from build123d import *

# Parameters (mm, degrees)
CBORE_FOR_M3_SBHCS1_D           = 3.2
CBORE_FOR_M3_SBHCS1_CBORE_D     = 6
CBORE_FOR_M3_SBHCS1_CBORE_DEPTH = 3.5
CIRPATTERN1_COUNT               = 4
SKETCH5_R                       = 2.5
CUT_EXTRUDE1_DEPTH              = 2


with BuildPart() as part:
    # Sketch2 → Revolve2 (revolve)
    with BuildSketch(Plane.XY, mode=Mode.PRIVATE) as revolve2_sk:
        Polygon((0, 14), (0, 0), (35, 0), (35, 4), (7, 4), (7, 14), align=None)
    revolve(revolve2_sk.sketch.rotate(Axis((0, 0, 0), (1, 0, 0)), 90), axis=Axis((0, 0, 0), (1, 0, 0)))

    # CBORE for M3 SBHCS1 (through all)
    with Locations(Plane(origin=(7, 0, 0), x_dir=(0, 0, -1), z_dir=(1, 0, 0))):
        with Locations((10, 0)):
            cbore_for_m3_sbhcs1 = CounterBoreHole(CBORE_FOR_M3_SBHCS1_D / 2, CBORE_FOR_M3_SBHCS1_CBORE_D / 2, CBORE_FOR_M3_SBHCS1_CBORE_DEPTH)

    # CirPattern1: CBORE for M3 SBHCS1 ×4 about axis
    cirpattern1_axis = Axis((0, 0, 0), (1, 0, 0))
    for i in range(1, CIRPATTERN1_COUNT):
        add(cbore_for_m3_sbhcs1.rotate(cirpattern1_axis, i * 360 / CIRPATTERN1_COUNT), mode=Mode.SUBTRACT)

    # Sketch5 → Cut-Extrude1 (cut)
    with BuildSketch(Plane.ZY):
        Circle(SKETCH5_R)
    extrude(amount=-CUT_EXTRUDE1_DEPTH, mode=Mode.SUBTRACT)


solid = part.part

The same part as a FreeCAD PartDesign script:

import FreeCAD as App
import Part
import Sketcher

doc = App.newDocument("Part")
params = doc.addObject("Spreadsheet::Sheet", "Params")
for row, (alias, value) in enumerate([
    ("sketch1_width", "35 mm"),
    ("sketch1_width2", "28 mm"),
    ("sketch1_height", "14 mm"),
    ("sketch1_height2", "4 mm"),
    ("revolution_angle", "360 deg"),
    ("sketch2_diameter", "3.2 mm"),
    ("hole_diameter", "3.2 mm"),
    ("hole_cbore_diameter", "6 mm"),
    ("hole_cbore_depth", "3.5 mm"),
    ("sketch3_diameter", "5 mm"),
    ("pocket1_length", "2 mm"),
], start=1):
    params.set(f"A{row}", alias)
    params.set(f"B{row}", "=" + value)
    params.setAlias(f"B{row}", alias)

body = doc.addObject("PartDesign::Body", "Body")

# Sketch on XY plane
sketch1 = body.newObject("Sketcher::SketchObject", "Sketch")
sketch1.AttachmentSupport = (doc.getObject("XY_Plane"), [""])
sketch1.MapMode = "FlatFace"
sketch1.addGeometry([
    Part.LineSegment(App.Vector(0, 14, 0), App.Vector(0, 0, 0)),  # 0
    Part.LineSegment(App.Vector(0, 0, 0), App.Vector(35, 0, 0)),  # 1
    Part.LineSegment(App.Vector(35, 0, 0), App.Vector(35, 4, 0)),  # 2
    Part.LineSegment(App.Vector(35, 4, 0), App.Vector(7, 4, 0)),  # 3
    Part.LineSegment(App.Vector(7, 4, 0), App.Vector(7, 14, 0)),  # 4
    Part.LineSegment(App.Vector(7, 14, 0), App.Vector(0, 14, 0)),  # 5
], False)
sketch1.addConstraint([
    Sketcher.Constraint("Coincident", 0, 2, 1, 1),
    Sketcher.Constraint("Coincident", 1, 2, 2, 1),
    Sketcher.Constraint("Coincident", 2, 2, 3, 1),
    Sketcher.Constraint("Coincident", 3, 2, 4, 1),
    Sketcher.Constraint("Coincident", 4, 2, 5, 1),
    Sketcher.Constraint("Coincident", 5, 2, 0, 1),
    Sketcher.Constraint("Vertical", 0),
    Sketcher.Constraint("Horizontal", 1),
    Sketcher.Constraint("Vertical", 2),
    Sketcher.Constraint("Horizontal", 3),
    Sketcher.Constraint("Vertical", 4),
    Sketcher.Constraint("Horizontal", 5),
    Sketcher.Constraint("Coincident", 0, 2, -1, 1),
    Sketcher.Constraint("DistanceX", 1, 1, 1, 2, 35.0),
    Sketcher.Constraint("DistanceX", 3, 2, 3, 1, 28.0),
    Sketcher.Constraint("DistanceY", 0, 2, 0, 1, 14.0),
    Sketcher.Constraint("DistanceY", 2, 1, 2, 2, 4.0),
])
sketch1.setExpression("Constraints[13]", "Params.sketch1_width")
sketch1.setExpression("Constraints[14]", "Params.sketch1_width2")
sketch1.setExpression("Constraints[15]", "Params.sketch1_height")
sketch1.setExpression("Constraints[16]", "Params.sketch1_height2")
revolution = body.newObject("PartDesign::Revolution", "Revolution")
revolution.Profile = sketch1
revolution.ReferenceAxis = (sketch1, ["H_Axis"])
revolution.setExpression("Angle", "Params.revolution_angle")

# Sketch on YZ plane
sketch2 = body.newObject("Sketcher::SketchObject", "Sketch001")
sketch2.AttachmentSupport = (doc.getObject("YZ_Plane"), [""])
sketch2.MapMode = "FlatFace"
sketch2.AttachmentOffset = App.Placement(App.Vector(0, 0, 7), App.Rotation())
sketch2.addGeometry(Part.Circle(App.Vector(0, -10, 0), App.Vector(0, 0, 1), 1.6), False)
sketch2.addConstraint([
    Sketcher.Constraint("PointOnObject", 0, 3, -2),
    Sketcher.Constraint("Diameter", 0, 3.2),
    Sketcher.Constraint("DistanceY", 0, 3, -1, 1, 10.0),
])
sketch2.setExpression("Constraints[1]", "Params.sketch2_diameter")
doc.recompute()
hole = body.newObject("PartDesign::Hole", "Hole")
hole.Profile = sketch2
hole.ThreadType = "None"
hole.setExpression("Diameter", "Params.hole_diameter")
hole.DepthType = "ThroughAll"
hole.HoleCutType = "Counterbore"
hole.setExpression("HoleCutDiameter", "Params.hole_cbore_diameter")
hole.setExpression("HoleCutDepth", "Params.hole_cbore_depth")
doc.recompute()

polarpattern = body.newObject("PartDesign::PolarPattern", "PolarPattern")
polarpattern.Originals = [hole]
polarpattern.Axis = (doc.getObject("X_Axis"), [""])
polarpattern.Angle = 360
polarpattern.Occurrences = 4
body.Tip = polarpattern

# Sketch on YZ plane
sketch3 = body.newObject("Sketcher::SketchObject", "Sketch002")
sketch3.AttachmentSupport = (doc.getObject("YZ_Plane"), [""])
sketch3.MapMode = "FlatFace"
sketch3.addGeometry(Part.Circle(App.Vector(0, 0, 0), App.Vector(0, 0, 1), 2.5), False)
sketch3.addConstraint([
    Sketcher.Constraint("Coincident", 0, 3, -1, 1),
    Sketcher.Constraint("Diameter", 0, 5.0),
])
sketch3.setExpression("Constraints[1]", "Params.sketch3_diameter")
pocket1 = body.newObject("PartDesign::Pocket", "Pocket")
pocket1.Profile = sketch3
pocket1.setExpression("Length", "Params.pocket1_length")
pocket1.Reversed = True

doc.recompute()
